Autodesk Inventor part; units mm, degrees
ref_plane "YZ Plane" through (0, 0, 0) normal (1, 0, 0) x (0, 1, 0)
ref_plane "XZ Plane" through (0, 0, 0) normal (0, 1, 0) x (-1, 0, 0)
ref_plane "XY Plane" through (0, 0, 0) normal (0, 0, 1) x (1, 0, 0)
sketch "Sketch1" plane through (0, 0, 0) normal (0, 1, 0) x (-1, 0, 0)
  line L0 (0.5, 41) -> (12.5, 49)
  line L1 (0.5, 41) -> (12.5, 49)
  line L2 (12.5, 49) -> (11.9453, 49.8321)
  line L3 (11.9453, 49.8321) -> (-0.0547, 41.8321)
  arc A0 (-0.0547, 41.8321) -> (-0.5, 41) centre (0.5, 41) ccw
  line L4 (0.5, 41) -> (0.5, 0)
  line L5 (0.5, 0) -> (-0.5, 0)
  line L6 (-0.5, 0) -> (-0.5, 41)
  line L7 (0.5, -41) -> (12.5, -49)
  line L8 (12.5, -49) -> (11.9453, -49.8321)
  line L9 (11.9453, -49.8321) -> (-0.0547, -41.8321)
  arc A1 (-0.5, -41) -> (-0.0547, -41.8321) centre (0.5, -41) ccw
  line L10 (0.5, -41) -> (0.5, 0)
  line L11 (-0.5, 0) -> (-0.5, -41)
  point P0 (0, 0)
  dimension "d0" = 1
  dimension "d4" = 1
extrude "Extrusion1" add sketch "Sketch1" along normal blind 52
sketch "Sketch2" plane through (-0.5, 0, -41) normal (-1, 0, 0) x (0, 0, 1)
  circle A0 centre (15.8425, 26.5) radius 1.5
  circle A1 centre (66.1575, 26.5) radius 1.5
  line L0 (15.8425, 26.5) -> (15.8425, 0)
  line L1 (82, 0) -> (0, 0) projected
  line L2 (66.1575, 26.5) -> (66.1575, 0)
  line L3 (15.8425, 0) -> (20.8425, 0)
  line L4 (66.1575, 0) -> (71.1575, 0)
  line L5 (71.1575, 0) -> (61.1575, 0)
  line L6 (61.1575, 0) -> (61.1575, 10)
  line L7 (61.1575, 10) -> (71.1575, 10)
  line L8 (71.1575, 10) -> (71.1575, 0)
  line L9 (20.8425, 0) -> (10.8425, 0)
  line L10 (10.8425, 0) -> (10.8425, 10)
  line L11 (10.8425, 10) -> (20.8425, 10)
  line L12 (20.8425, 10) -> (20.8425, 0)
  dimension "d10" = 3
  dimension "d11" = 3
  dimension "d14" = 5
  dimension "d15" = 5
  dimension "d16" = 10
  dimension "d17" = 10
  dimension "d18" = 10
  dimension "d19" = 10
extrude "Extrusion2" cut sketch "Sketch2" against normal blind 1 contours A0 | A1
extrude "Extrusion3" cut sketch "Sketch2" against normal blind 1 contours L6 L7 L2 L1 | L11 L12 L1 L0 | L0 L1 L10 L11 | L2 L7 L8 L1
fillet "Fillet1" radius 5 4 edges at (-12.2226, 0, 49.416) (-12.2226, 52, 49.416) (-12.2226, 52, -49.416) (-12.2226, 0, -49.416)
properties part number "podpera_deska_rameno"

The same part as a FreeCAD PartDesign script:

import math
import FreeCAD as App
import Part
import Sketcher
Q = App.Units.Quantity


def edges_at(feature, points):
    """Names of the edges that pass closest to the given points."""
    edges = feature.Shape.Edges
    near = lambda p: min(range(len(edges)), key=lambda i: edges[i].distToShape(Part.Vertex(*p))[0])
    return sorted({f"Edge{near(p) + 1}" for p in points})


def add_polygon(sketch, points):
    """Adds a closed chain of lines whose ends are joined by coincident constraints."""
    first, n = sketch.GeometryCount, len(points)
    for a, b in zip(points, points[1:] + points[:1]):
        sketch.addGeometry(Part.LineSegment(App.Vector(*a, 0), App.Vector(*b, 0)), False)
    for i in range(n):
        sketch.addConstraint(Sketcher.Constraint("Coincident", first + i, 2, first + (i + 1) % n, 1))

doc = App.newDocument("Part")
body = doc.addObject("PartDesign::Body", "Body")

# Sketch on XZ plane
sketch1 = doc.addObject("Sketcher::SketchObject", "Sketch")
body.addObject(sketch1)
sketch1.AttachmentSupport = (doc.XZ_Plane, [""])
sketch1.MapMode = "FlatFace"
sketch1.addGeometry([
    Part.LineSegment(App.Vector(-0.5, 41, 0), App.Vector(-12.5, 49, 0)),  # 0
    Part.LineSegment(App.Vector(-12.5, 49, 0), App.Vector(-11.9, 49.8, 0)),  # 1
    Part.LineSegment(App.Vector(-11.9, 49.8, 0), App.Vector(0.1, 41.8, 0)),  # 2
    Part.ArcOfCircle(Part.Circle(App.Vector(-0.5, 41, 0), App.Vector(0, 0, 1), 1), math.radians(0), math.radians(56)),  # 3
    Part.LineSegment(App.Vector(0.5, 41, 0), App.Vector(0.5, -41, 0)),  # 4
    Part.ArcOfCircle(Part.Circle(App.Vector(-0.5, -41, 0), App.Vector(0, 0, 1), 1), math.radians(-56), math.radians(0)),  # 5
    Part.LineSegment(App.Vector(0.1, -41.8, 0), App.Vector(-11.9, -49.8, 0)),  # 6
    Part.LineSegment(App.Vector(-11.9, -49.8, 0), App.Vector(-12.5, -49, 0)),  # 7
    Part.LineSegment(App.Vector(-12.5, -49, 0), App.Vector(-0.5, -41, 0)),  # 8
    Part.LineSegment(App.Vector(-0.5, -41, 0), App.Vector(-0.5, 41, 0)),  # 9
], False)
sketch1.addConstraint([
    Sketcher.Constraint("Coincident", 0, 2, 1, 1),
    Sketcher.Constraint("Coincident", 1, 2, 2, 1),
    Sketcher.Constraint("Tangent", 2, 2, 3, 2),
    Sketcher.Constraint("Tangent", 3, 1, 4, 1),
    Sketcher.Constraint("Tangent", 4, 2, 5, 2),
    Sketcher.Constraint("Tangent", 5, 1, 6, 1),
    Sketcher.Constraint("Coincident", 6, 2, 7, 1),
    Sketcher.Constraint("Coincident", 7, 2, 8, 1),
    Sketcher.Constraint("Coincident", 8, 2, 9, 1),
    Sketcher.Constraint("Coincident", 9, 2, 0, 1),
    Sketcher.Constraint("Vertical", 4),
    Sketcher.Constraint("Vertical", 9),
    Sketcher.Constraint("Coincident", 8, 2, 5, 3),
    Sketcher.Constraint("Coincident", 9, 2, 3, 3),
    Sketcher.Constraint("Symmetric", 3, 1, 8, 2, -1, 1),
    Sketcher.Constraint("Symmetric", 1, 2, 6, 2, -1),
    Sketcher.Constraint("Symmetric", 0, 2, 7, 2, -1),
    Sketcher.Constraint("Perpendicular", 0, 1),
    Sketcher.Constraint("Perpendicular", 1, 2),
    Sketcher.Constraint("Radius", 3, Q("1 mm")),
    Sketcher.Constraint("DistanceY", 4, 2, 4, 1, Q("82 mm")),
    Sketcher.Constraint("DistanceY", -1, 1, 0, 2, Q("49 mm")),
    Sketcher.Constraint("DistanceX", 0, 2, 3, 3, Q("12 mm")),
])
pad1 = doc.addObject("PartDesign::Pad", "Pad")
body.addObject(pad1)
pad1.Profile = sketch1
pad1.Length = 52
pad1.Reversed = True

# Sketch on YZ plane
sketch2 = doc.addObject("Sketcher::SketchObject", "Sketch001")
body.addObject(sketch2)
sketch2.AttachmentSupport = (doc.YZ_Plane, [""])
sketch2.MapMode = "FlatFace"
sketch2.AttachmentOffset = App.Placement(App.Vector(0, 0, -0.5), App.Rotation())
sketch2.addGeometry([
    Part.Circle(App.Vector(26.5, -25.2, 0), App.Vector(0, 0, 1), 1.5),
    Part.Circle(App.Vector(26.5, 25.2, 0), App.Vector(0, 0, 1), 1.5),
], False)
sketch2.addConstraint([
    Sketcher.Constraint("Equal", 0, 1),
    Sketcher.Constraint("Symmetric", 0, 3, 1, 3, -1),
    Sketcher.Constraint("Diameter", 0, Q("3 mm")),
    Sketcher.Constraint("DistanceX", -1, 1, 0, 3, Q("26.5 mm")),
    Sketcher.Constraint("DistanceY", 0, 3, 1, 3, Q("50.315 mm")),
])
pocket1 = doc.addObject("PartDesign::Pocket", "Pocket")
body.addObject(pocket1)
pocket1.Profile = sketch2
pocket1.Length = 1
pocket1.Reversed = True

# Sketch on YZ plane
sketch3 = doc.addObject("Sketcher::SketchObject", "Sketch002")
body.addObject(sketch3)
sketch3.AttachmentSupport = (doc.YZ_Plane, [""])
sketch3.MapMode = "FlatFace"
sketch3.AttachmentOffset = App.Placement(App.Vector(0, 0, -0.5), App.Rotation())
add_polygon(sketch3, [(10, 20), (0, 20), (0, 30), (10, 30)])  # lines 0-3
add_polygon(sketch3, [(10, -20), (10, -30), (0, -30), (0, -20)])  # lines 4-7
sketch3.addConstraint([
    Sketcher.Constraint("Horizontal", 0),
    Sketcher.Constraint("Vertical", 1),
    Sketcher.Constraint("Horizontal", 2),
    Sketcher.Constraint("Vertical", 3),
    Sketcher.Constraint("Vertical", 4),
    Sketcher.Constraint("Horizontal", 5),
    Sketcher.Constraint("Vertical", 6),
    Sketcher.Constraint("Horizontal", 7),
    Sketcher.Constraint("Symmetric", 1, 2, 5, 2, -1, 1),
    Sketcher.Constraint("Symmetric", 0, 2, 6, 2, -1),
    Sketcher.Constraint("Vertical", 3, 2, 4, 2),
    Sketcher.Constraint("Equal", 7, 1),
    Sketcher.Constraint("DistanceX", 0, 2, 0, 1, Q("10 mm")),
    Sketcher.Constraint("DistanceY", 4, 2, 3, 2, Q("50.315 mm")),
])
pocket2 = doc.addObject("PartDesign::Pocket", "Pocket001")
body.addObject(pocket2)
pocket2.Profile = sketch3
pocket2.Length = 1
pocket2.Reversed = True
doc.recompute()

fillet = doc.addObject("PartDesign::Fillet", "Fillet")
body.addObject(fillet)
fillet.Base = (pocket2, edges_at(pocket2, [
    (-12.223, 0, 49.416),
    (-12.223, 52, 49.416),
    (-12.223, 52, -49.416),
    (-12.223, 0, -49.416),
]))
fillet.Radius = 5

doc.recompute()
